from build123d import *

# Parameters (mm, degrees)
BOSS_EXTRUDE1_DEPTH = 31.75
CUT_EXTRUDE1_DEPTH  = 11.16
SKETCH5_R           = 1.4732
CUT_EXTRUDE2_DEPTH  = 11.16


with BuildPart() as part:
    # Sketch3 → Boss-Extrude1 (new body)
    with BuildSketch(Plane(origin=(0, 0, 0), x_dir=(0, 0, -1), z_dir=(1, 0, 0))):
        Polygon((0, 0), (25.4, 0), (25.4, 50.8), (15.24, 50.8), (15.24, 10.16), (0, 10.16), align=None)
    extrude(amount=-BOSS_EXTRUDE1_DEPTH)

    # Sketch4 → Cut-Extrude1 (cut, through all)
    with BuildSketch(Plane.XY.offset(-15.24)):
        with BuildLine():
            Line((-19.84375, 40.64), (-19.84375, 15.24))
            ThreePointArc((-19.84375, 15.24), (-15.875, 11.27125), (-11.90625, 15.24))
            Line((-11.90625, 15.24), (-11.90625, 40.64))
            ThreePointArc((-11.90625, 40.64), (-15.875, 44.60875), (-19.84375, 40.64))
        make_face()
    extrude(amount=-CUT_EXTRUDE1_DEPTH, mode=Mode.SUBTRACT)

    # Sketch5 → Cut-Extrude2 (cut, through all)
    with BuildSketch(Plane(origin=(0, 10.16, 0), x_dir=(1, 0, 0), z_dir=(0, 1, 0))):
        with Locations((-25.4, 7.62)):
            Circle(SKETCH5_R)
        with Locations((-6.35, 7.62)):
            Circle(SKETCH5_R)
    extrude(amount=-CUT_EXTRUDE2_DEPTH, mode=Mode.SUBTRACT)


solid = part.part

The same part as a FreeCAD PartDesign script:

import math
import FreeCAD as App
import Part
import Sketcher

V = App.Vector
Q = App.Units.Quantity

doc = App.newDocument("Part")
body = doc.addObject("PartDesign::Body", "Body")

sketch1 = doc.addObject("Sketcher::SketchObject", "Sketch")
body.addObject(sketch1)
sketch1.AttachmentSupport = (doc.YZ_Plane, [""])
sketch1.MapMode = "FlatFace"
sketch1.addGeometry(Part.LineSegment(V(0, 0, 0), V(0, -25, 0)), False)
sketch1.addGeometry(Part.LineSegment(V(0, -25, 0), V(51, -25, 0)), False)
sketch1.addGeometry(Part.LineSegment(V(51, -25, 0), V(51, -15, 0)), False)
sketch1.addGeometry(Part.LineSegment(V(51, -15, 0), V(10, -15, 0)), False)
sketch1.addGeometry(Part.LineSegment(V(10, -15, 0), V(10, 0, 0)), False)
sketch1.addGeometry(Part.LineSegment(V(10, 0, 0), V(0, 0, 0)), False)
sketch1.addConstraint(Sketcher.Constraint("Coincident", 0, 2, 1, 1))
sketch1.addConstraint(Sketcher.Constraint("Coincident", 1, 2, 2, 1))
sketch1.addConstraint(Sketcher.Constraint("Coincident", 2, 2, 3, 1))
sketch1.addConstraint(Sketcher.Constraint("Coincident", 3, 2, 4, 1))
sketch1.addConstraint(Sketcher.Constraint("Coincident", 4, 2, 5, 1))
sketch1.addConstraint(Sketcher.Constraint("Coincident", 5, 2, 0, 1))
sketch1.addConstraint(Sketcher.Constraint("Vertical", 0))
sketch1.addConstraint(Sketcher.Constraint("Horizontal", 1))
sketch1.addConstraint(Sketcher.Constraint("Vertical", 2))
sketch1.addConstraint(Sketcher.Constraint("Horizontal", 3))
sketch1.addConstraint(Sketcher.Constraint("Vertical", 4))
sketch1.addConstraint(Sketcher.Constraint("Horizontal", 5))
sketch1.addConstraint(Sketcher.Constraint("Coincident", 5, 2, -1, 1))
sketch1.addConstraint(Sketcher.Constraint("Equal", 5, 2))
sketch1.addConstraint(Sketcher.Constraint("DistanceX", 1, 1, 1, 2, Q("2 in")))
sketch1.addConstraint(Sketcher.Constraint("DistanceY", 0, 2, 0, 1, Q("1 in")))
sketch1.addConstraint(Sketcher.Constraint("DistanceX", 3, 2, 3, 1, Q("1.6 in")))
pad1 = doc.addObject("PartDesign::Pad", "Pad")
body.addObject(pad1)
pad1.Profile = sketch1
pad1.Length = Q("1.25 in")
pad1.Reversed = True

sketch2 = doc.addObject("Sketcher::SketchObject", "Sketch001")
body.addObject(sketch2)
sketch2.AttachmentSupport = (doc.XY_Plane, [""])
sketch2.MapMode = "FlatFace"
sketch2.AttachmentOffset = App.Placement(V(0, 0, -0.6 * 25.4), App.Rotation())
sketch2.addGeometry(Part.LineSegment(V(-19.8, 40.6, 0), V(-19.8, 15.2, 0)), False)
sketch2.addGeometry(Part.ArcOfCircle(Part.Circle(V(-15.9, 15.2, 0), V(0, 0, 1), 4), math.radians(180), math.radians(360)), False)
sketch2.addGeometry(Part.LineSegment(V(-11.9, 15.2, 0), V(-11.9, 40.6, 0)), False)
sketch2.addGeometry(Part.ArcOfCircle(Part.Circle(V(-15.9, 40.6, 0), V(0, 0, 1), 4), math.radians(0), math.radians(180)), False)
sketch2.addConstraint(Sketcher.Constraint("Tangent", 0, 2, 1, 1))
sketch2.addConstraint(Sketcher.Constraint("Tangent", 1, 2, 2, 1))
sketch2.addConstraint(Sketcher.Constraint("Tangent", 2, 2, 3, 1))
sketch2.addConstraint(Sketcher.Constraint("Tangent", 3, 2, 0, 1))
sketch2.addConstraint(Sketcher.Constraint("Vertical", 0))
sketch2.addConstraint(Sketcher.Constraint("Vertical", 2))
sketch2.addConstraint(Sketcher.Constraint("DistanceY", 0, 2, 0, 1, Q("1 in")))
sketch2.addConstraint(Sketcher.Constraint("Radius", 1, Q("0.15625 in")))
sketch2.addConstraint(Sketcher.Constraint("DistanceY", -1, 1, 1, 3, Q("0.6 in")))
sketch2.addConstraint(Sketcher.Constraint("DistanceX", 1, 3, -1, 1, Q("0.625 in")))
pocket1 = doc.addObject("PartDesign::Pocket", "Pocket")
body.addObject(pocket1)
pocket1.Profile = sketch2
pocket1.Type = "ThroughAll"

sketch3 = doc.addObject("Sketcher::SketchObject", "Sketch002")
body.addObject(sketch3)
sketch3.AttachmentSupport = (doc.XZ_Plane, [""])
sketch3.MapMode = "FlatFace"
sketch3.AttachmentOffset = App.Placement(V(0, 0, -0.4 * 25.4), App.Rotation())
sketch3.addGeometry(Part.Circle(V(-25.4, -7.6, 0), V(0, 0, 1), 1.5), False)
sketch3.addGeometry(Part.Circle(V(-6.3, -7.6, 0), V(0, 0, 1), 1.5), False)
sketch3.addConstraint(Sketcher.Constraint("Equal", 0, 1))
sketch3.addConstraint(Sketcher.Constraint("Horizontal", 0, 3, 1, 3))
sketch3.addConstraint(Sketcher.Constraint("Diameter", 0, Q("0.116 in")))
sketch3.addConstraint(Sketcher.Constraint("DistanceX", 0, 3, -1, 1, Q("1 in")))
sketch3.addConstraint(Sketcher.Constraint("DistanceY", 0, 3, -1, 1, Q("0.3 in")))
sketch3.addConstraint(Sketcher.Constraint("DistanceX", 1, 3, -1, 1, Q("0.25 in")))
pocket2 = doc.addObject("PartDesign::Pocket", "Pocket001")
body.addObject(pocket2)
pocket2.Profile = sketch3
pocket2.Type = "ThroughAll"
pocket2.Reversed = True

doc.recompute()
